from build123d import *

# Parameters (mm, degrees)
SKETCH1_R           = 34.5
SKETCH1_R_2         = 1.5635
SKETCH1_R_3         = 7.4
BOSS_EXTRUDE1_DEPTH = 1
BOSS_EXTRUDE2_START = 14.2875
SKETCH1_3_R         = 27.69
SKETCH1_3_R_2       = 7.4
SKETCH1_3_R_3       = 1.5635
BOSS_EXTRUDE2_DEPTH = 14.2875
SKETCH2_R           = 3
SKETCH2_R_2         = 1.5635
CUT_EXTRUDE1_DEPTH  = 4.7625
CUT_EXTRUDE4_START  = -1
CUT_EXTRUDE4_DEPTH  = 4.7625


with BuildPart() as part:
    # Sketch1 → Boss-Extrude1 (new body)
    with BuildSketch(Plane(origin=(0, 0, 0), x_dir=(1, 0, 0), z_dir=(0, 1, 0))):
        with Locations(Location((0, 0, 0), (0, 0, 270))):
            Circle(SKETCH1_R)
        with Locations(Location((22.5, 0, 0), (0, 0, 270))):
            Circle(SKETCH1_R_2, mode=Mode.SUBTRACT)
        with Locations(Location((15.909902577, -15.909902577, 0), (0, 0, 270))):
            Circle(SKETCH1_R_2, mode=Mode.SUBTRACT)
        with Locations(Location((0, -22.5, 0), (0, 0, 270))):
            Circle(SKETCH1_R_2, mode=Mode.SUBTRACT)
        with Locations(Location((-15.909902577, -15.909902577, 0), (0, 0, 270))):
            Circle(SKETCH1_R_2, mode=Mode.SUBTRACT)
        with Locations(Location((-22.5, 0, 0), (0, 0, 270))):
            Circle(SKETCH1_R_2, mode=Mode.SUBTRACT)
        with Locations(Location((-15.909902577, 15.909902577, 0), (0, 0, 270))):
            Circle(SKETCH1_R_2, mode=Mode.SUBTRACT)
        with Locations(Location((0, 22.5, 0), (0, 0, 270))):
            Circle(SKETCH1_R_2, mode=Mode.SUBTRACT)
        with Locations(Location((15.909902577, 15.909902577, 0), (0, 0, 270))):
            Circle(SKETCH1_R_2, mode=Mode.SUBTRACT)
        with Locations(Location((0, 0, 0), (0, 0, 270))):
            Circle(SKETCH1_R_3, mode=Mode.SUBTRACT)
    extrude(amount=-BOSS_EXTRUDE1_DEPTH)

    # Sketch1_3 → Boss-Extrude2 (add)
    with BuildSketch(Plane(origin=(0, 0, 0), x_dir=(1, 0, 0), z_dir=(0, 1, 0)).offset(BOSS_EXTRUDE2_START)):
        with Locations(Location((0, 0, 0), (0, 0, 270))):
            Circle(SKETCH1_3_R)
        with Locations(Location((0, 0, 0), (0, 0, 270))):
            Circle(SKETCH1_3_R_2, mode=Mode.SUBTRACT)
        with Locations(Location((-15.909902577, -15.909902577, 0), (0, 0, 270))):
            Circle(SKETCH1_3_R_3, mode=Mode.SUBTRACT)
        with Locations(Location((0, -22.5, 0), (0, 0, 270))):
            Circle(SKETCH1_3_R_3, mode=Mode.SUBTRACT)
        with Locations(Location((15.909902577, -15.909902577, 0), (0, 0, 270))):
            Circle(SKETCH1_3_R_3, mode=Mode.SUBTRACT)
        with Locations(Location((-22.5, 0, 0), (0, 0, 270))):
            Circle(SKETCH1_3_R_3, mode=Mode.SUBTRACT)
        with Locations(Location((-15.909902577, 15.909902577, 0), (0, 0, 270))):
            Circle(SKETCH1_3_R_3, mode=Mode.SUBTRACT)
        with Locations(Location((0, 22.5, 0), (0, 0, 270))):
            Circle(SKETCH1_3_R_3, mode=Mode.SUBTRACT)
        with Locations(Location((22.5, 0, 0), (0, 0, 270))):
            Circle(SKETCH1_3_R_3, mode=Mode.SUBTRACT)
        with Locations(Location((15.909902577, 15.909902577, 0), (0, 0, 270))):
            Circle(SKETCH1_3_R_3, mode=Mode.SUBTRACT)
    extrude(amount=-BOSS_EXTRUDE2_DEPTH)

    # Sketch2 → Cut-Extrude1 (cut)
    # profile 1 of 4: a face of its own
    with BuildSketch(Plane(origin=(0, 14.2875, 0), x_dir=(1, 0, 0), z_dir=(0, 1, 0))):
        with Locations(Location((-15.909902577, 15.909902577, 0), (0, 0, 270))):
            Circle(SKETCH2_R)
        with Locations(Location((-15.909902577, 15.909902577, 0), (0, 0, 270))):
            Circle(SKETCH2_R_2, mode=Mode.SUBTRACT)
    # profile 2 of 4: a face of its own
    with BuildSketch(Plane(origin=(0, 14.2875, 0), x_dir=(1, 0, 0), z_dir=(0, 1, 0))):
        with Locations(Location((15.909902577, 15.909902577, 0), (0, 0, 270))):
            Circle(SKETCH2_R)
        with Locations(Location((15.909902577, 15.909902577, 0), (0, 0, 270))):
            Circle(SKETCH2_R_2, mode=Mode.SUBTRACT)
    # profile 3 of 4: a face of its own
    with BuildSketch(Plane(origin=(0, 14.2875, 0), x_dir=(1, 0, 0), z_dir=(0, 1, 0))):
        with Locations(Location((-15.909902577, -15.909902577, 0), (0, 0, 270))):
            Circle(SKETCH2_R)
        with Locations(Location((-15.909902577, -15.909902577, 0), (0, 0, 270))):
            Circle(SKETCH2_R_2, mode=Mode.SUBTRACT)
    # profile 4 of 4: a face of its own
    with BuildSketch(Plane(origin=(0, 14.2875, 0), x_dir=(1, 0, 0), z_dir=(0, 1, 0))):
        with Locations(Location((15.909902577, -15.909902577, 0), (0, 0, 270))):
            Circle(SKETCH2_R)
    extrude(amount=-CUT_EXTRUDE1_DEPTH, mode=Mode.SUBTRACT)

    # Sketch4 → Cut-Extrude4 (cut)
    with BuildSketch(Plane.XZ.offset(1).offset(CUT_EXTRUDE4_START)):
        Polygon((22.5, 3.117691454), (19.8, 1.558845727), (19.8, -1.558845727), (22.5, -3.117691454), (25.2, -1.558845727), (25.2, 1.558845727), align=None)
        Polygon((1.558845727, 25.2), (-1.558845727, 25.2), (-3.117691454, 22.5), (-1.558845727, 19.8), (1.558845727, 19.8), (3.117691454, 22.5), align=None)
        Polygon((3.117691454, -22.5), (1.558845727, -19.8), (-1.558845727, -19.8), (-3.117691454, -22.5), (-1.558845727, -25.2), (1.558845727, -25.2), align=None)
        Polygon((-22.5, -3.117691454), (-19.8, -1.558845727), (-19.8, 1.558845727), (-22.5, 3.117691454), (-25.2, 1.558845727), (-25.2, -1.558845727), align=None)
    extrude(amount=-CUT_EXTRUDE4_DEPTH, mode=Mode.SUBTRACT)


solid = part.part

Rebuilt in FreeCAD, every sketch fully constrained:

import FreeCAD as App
import Part
import Sketcher
from FreeCAD import Vector
Q = App.Units.Quantity

doc = App.newDocument("Part")
body = doc.addObject("PartDesign::Body", "Body")

# Sketch on XZ plane
sketch1 = body.newObject("Sketcher::SketchObject", "Sketch")
sketch1.AttachmentSupport = (doc.getObject("XZ_Plane"), [""])
sketch1.MapMode = "FlatFace"
sketch1.addGeometry([
    Part.Circle(Vector(0, 0, 0), Vector(0, 0, 1), 34.5),  # 0
    Part.Circle(Vector(-15.909903, -15.909903, 0), Vector(0, 0, 1), 1.5635),  # 1
    Part.Circle(Vector(0, -22.5, 0), Vector(0, 0, 1), 1.5635),  # 2
    Part.Circle(Vector(-22.5, 0, 0), Vector(0, 0, 1), 1.5635),  # 3
    Part.Circle(Vector(-15.909903, 15.909903, 0), Vector(0, 0, 1), 1.5635),  # 4
    Part.Circle(Vector(15.909903, -15.909903, 0), Vector(0, 0, 1), 1.5635),  # 5
    Part.Circle(Vector(22.5, 0, 0), Vector(0, 0, 1), 1.5635),  # 6
    Part.Circle(Vector(0, 0, 0), Vector(0, 0, 1), 7.4),  # 7
    Part.Circle(Vector(0, 22.5, 0), Vector(0, 0, 1), 1.5635),  # 8
    Part.Circle(Vector(15.909903, 15.909903, 0), Vector(0, 0, 1), 1.5635),  # 9
], False)
sketch1.addConstraint([
    Sketcher.Constraint("Coincident", 0, 3, -1, 1),
    Sketcher.Constraint("Coincident", 7, 3, -1, 1),
    Sketcher.Constraint("Equal", 1, 2),
    Sketcher.Constraint("Equal", 2, 3),
    Sketcher.Constraint("Equal", 3, 4),
    Sketcher.Constraint("Equal", 4, 5),
    Sketcher.Constraint("Equal", 5, 6),
    Sketcher.Constraint("Equal", 6, 8),
    Sketcher.Constraint("Equal", 8, 9),
    Sketcher.Constraint("Symmetric", 4, 3, 5, 3, -1, 1),
    Sketcher.Constraint("Symmetric", 3, 3, 6, 3, -1, 1),
    Sketcher.Constraint("Symmetric", 2, 3, 8, 3, -1, 1),
    Sketcher.Constraint("Symmetric", 1, 3, 9, 3, -1, 1),
    Sketcher.Constraint("Symmetric", 1, 3, 5, 3, -2),
    Sketcher.Constraint("PointOnObject", 2, 3, -2),
    Sketcher.Constraint("PointOnObject", 3, 3, -1),
    Sketcher.Constraint("Diameter", 0, Q("69 mm")),
    Sketcher.Constraint("Diameter", 7, Q("14.8 mm")),
    Sketcher.Constraint("Diameter", 1, Q("3.127 mm")),
    Sketcher.Constraint("DistanceY", 2, 3, -1, 1, Q("22.5 mm")),
    Sketcher.Constraint("DistanceX", 3, 3, -1, 1, Q("22.5 mm")),
    Sketcher.Constraint("DistanceX", 1, 3, -1, 1, Q("15.909903 mm")),
    Sketcher.Constraint("DistanceY", 1, 3, -1, 1, Q("15.909903 mm")),
])
pad1 = body.newObject("PartDesign::Pad", "Pad")
pad1.Profile = sketch1
pad1.Length = 1

# Sketch on XZ plane
sketch2 = body.newObject("Sketcher::SketchObject", "Sketch001")
sketch2.AttachmentSupport = (doc.getObject("XZ_Plane"), [""])
sketch2.MapMode = "FlatFace"
sketch2.AttachmentOffset = App.Placement(Vector(0, 0, -14.2875), App.Rotation())
sketch2.addGeometry([
    Part.Circle(Vector(0, 0, 0), Vector(0, 0, 1), 27.69),  # 0
    Part.Circle(Vector(-15.909903, -15.909903, 0), Vector(0, 0, 1), 1.5635),  # 1
    Part.Circle(Vector(0, -22.5, 0), Vector(0, 0, 1), 1.5635),  # 2
    Part.Circle(Vector(-22.5, 0, 0), Vector(0, 0, 1), 1.5635),  # 3
    Part.Circle(Vector(-15.909903, 15.909903, 0), Vector(0, 0, 1), 1.5635),  # 4
    Part.Circle(Vector(15.909903, -15.909903, 0), Vector(0, 0, 1), 1.5635),  # 5
    Part.Circle(Vector(22.5, 0, 0), Vector(0, 0, 1), 1.5635),  # 6
    Part.Circle(Vector(0, 0, 0), Vector(0, 0, 1), 7.4),  # 7
    Part.Circle(Vector(0, 22.5, 0), Vector(0, 0, 1), 1.5635),  # 8
    Part.Circle(Vector(15.909903, 15.909903, 0), Vector(0, 0, 1), 1.5635),  # 9
], False)
sketch2.addConstraint([
    Sketcher.Constraint("Coincident", 0, 3, -1, 1),
    Sketcher.Constraint("Coincident", 7, 3, -1, 1),
    Sketcher.Constraint("Equal", 1, 2),
    Sketcher.Constraint("Equal", 2, 3),
    Sketcher.Constraint("Equal", 3, 4),
    Sketcher.Constraint("Equal", 4, 5),
    Sketcher.Constraint("Equal", 5, 6),
    Sketcher.Constraint("Equal", 6, 8),
    Sketcher.Constraint("Equal", 8, 9),
    Sketcher.Constraint("Symmetric", 4, 3, 5, 3, -1, 1),
    Sketcher.Constraint("Symmetric", 3, 3, 6, 3, -1, 1),
    Sketcher.Constraint("Symmetric", 2, 3, 8, 3, -1, 1),
    Sketcher.Constraint("Symmetric", 1, 3, 9, 3, -1, 1),
    Sketcher.Constraint("Symmetric", 1, 3, 5, 3, -2),
    Sketcher.Constraint("PointOnObject", 2, 3, -2),
    Sketcher.Constraint("PointOnObject", 3, 3, -1),
    Sketcher.Constraint("Diameter", 7, Q("14.8 mm")),
    Sketcher.Constraint("Diameter", 0, Q("55.38 mm")),
    Sketcher.Constraint("Diameter", 1, Q("3.127 mm")),
    Sketcher.Constraint("DistanceY", 2, 3, -1, 1, Q("22.5 mm")),
    Sketcher.Constraint("DistanceX", 3, 3, -1, 1, Q("22.5 mm")),
    Sketcher.Constraint("DistanceX", 1, 3, -1, 1, Q("15.909903 mm")),
    Sketcher.Constraint("DistanceY", 1, 3, -1, 1, Q("15.909903 mm")),
])
pad2 = body.newObject("PartDesign::Pad", "Pad001")
pad2.Profile = sketch2
pad2.Length = 14.2875

# Sketch on XZ plane
sketch3 = body.newObject("Sketcher::SketchObject", "Sketch002")
sketch3.AttachmentSupport = (doc.getObject("XZ_Plane"), [""])
sketch3.MapMode = "FlatFace"
sketch3.AttachmentOffset = App.Placement(Vector(0, 0, -14.2875), App.Rotation())
sketch3.addGeometry([
    Part.Circle(Vector(-15.909903, -15.909903, 0), Vector(0, 0, 1), 3),  # 0
    Part.Circle(Vector(-15.909903, -15.909903, 0), Vector(0, 0, 1), 1.5635),  # 1
    Part.Circle(Vector(15.909903, -15.909903, 0), Vector(0, 0, 1), 3),  # 2
    Part.Circle(Vector(15.909903, -15.909903, 0), Vector(0, 0, 1), 1.5635),  # 3
    Part.Circle(Vector(-15.909903, 15.909903, 0), Vector(0, 0, 1), 3),  # 4
    Part.Circle(Vector(-15.909903, 15.909903, 0), Vector(0, 0, 1), 1.5635),  # 5
    Part.Circle(Vector(15.909903, 15.909903, 0), Vector(0, 0, 1), 3),  # 6
], False)
sketch3.addConstraint([
    Sketcher.Constraint("Coincident", 1, 3, 0, 3),
    Sketcher.Constraint("Coincident", 3, 3, 2, 3),
    Sketcher.Constraint("Coincident", 5, 3, 4, 3),
    Sketcher.Constraint("Equal", 0, 2),
    Sketcher.Constraint("Equal", 1, 3),
    Sketcher.Constraint("Equal", 2, 4),
    Sketcher.Constraint("Equal", 3, 5),
    Sketcher.Constraint("Equal", 4, 6),
    Sketcher.Constraint("Symmetric", 2, 3, 4, 3, -1, 1),
    Sketcher.Constraint("Symmetric", 0, 3, 6, 3, -1, 1),
    Sketcher.Constraint("Symmetric", 0, 3, 2, 3, -2),
    Sketcher.Constraint("Diameter", 0, Q("6 mm")),
    Sketcher.Constraint("Diameter", 1, Q("3.127 mm")),
    Sketcher.Constraint("DistanceX", 0, 3, -1, 1, Q("15.909903 mm")),
    Sketcher.Constraint("DistanceY", 0, 3, -1, 1, Q("15.909903 mm")),
])
pocket1 = body.newObject("PartDesign::Pocket", "Pocket")
pocket1.Profile = sketch3
pocket1.Length = 4.7625
pocket1.Reversed = True

# Sketch on XZ plane
sketch4 = body.newObject("Sketcher::SketchObject", "Sketch003")
sketch4.AttachmentSupport = (doc.getObject("XZ_Plane"), [""])
sketch4.MapMode = "FlatFace"
sketch4.addGeometry([
    Part.LineSegment(Vector(22.5, 3.117691, 0), Vector(19.8, 1.558846, 0)),  # 0
    Part.LineSegment(Vector(19.8, 1.558846, 0), Vector(19.8, -1.558846, 0)),  # 1
    Part.LineSegment(Vector(19.8, -1.558846, 0), Vector(22.5, -3.117691, 0)),  # 2
    Part.LineSegment(Vector(22.5, -3.117691, 0), Vector(25.2, -1.558846, 0)),  # 3
    Part.LineSegment(Vector(25.2, -1.558846, 0), Vector(25.2, 1.558846, 0)),  # 4
    Part.LineSegment(Vector(25.2, 1.558846, 0), Vector(22.5, 3.117691, 0)),  # 5
    Part.LineSegment(Vector(1.558846, 25.2, 0), Vector(-1.558846, 25.2, 0)),  # 6
    Part.LineSegment(Vector(-1.558846, 25.2, 0), Vector(-3.117691, 22.5, 0)),  # 7
    Part.LineSegment(Vector(-3.117691, 22.5, 0), Vector(-1.558846, 19.8, 0)),  # 8
    Part.LineSegment(Vector(-1.558846, 19.8, 0), Vector(1.558846, 19.8, 0)),  # 9
    Part.LineSegment(Vector(1.558846, 19.8, 0), Vector(3.117691, 22.5, 0)),  # 10
    Part.LineSegment(Vector(3.117691, 22.5, 0), Vector(1.558846, 25.2, 0)),  # 11
    Part.LineSegment(Vector(3.117691, -22.5, 0), Vector(1.558846, -19.8, 0)),  # 12
    Part.LineSegment(Vector(1.558846, -19.8, 0), Vector(-1.558846, -19.8, 0)),  # 13
    Part.LineSegment(Vector(-1.558846, -19.8, 0), Vector(-3.117691, -22.5, 0)),  # 14
    Part.LineSegment(Vector(-3.117691, -22.5, 0), Vector(-1.558846, -25.2, 0)),  # 15
    Part.LineSegment(Vector(-1.558846, -25.2, 0), Vector(1.558846, -25.2, 0)),  # 16
    Part.LineSegment(Vector(1.558846, -25.2, 0), Vector(3.117691, -22.5, 0)),  # 17
    Part.LineSegment(Vector(-22.5, -3.117691, 0), Vector(-19.8, -1.558846, 0)),  # 18
    Part.LineSegment(Vector(-19.8, -1.558846, 0), Vector(-19.8, 1.558846, 0)),  # 19
    Part.LineSegment(Vector(-19.8, 1.558846, 0), Vector(-22.5, 3.117691, 0)),  # 20
    Part.LineSegment(Vector(-22.5, 3.117691, 0), Vector(-25.2, 1.558846, 0)),  # 21
    Part.LineSegment(Vector(-25.2, 1.558846, 0), Vector(-25.2, -1.558846, 0)),  # 22
    Part.LineSegment(Vector(-25.2, -1.558846, 0), Vector(-22.5, -3.117691, 0)),  # 23
], False)
sketch4.addConstraint([
    Sketcher.Constraint("Coincident", 0, 2, 1, 1),
    Sketcher.Constraint("Coincident", 1, 2, 2, 1),
    Sketcher.Constraint("Coincident", 2, 2, 3, 1),
    Sketcher.Constraint("Coincident", 3, 2, 4, 1),
    Sketcher.Constraint("Coincident", 4, 2, 5, 1),
    Sketcher.Constraint("Coincident", 5, 2, 0, 1),
    Sketcher.Constraint("Coincident", 6, 2, 7, 1),
    Sketcher.Constraint("Coincident", 7, 2, 8, 1),
    Sketcher.Constraint("Coincident", 8, 2, 9, 1),
    Sketcher.Constraint("Coincident", 9, 2, 10, 1),
    Sketcher.Constraint("Coincident", 10, 2, 11, 1),
    Sketcher.Constraint("Coincident", 11, 2, 6, 1),
    Sketcher.Constraint("Coincident", 12, 2, 13, 1),
    Sketcher.Constraint("Coincident", 13, 2, 14, 1),
    Sketcher.Constraint("Coincident", 14, 2, 15, 1),
    Sketcher.Constraint("Coincident", 15, 2, 16, 1),
    Sketcher.Constraint("Coincident", 16, 2, 17, 1),
    Sketcher.Constraint("Coincident", 17, 2, 12, 1),
    Sketcher.Constraint("Coincident", 18, 2, 19, 1),
    Sketcher.Constraint("Coincident", 19, 2, 20, 1),
    Sketcher.Constraint("Coincident", 20, 2, 21, 1),
    Sketcher.Constraint("Coincident", 21, 2, 22, 1),
    Sketcher.Constraint("Coincident", 22, 2, 23, 1),
    Sketcher.Constraint("Coincident", 23, 2, 18, 1),
    Sketcher.Constraint("Vertical", 1),
    Sketcher.Constraint("Vertical", 4),
    Sketcher.Constraint("Horizontal", 6),
    Sketcher.Constraint("Horizontal", 9),
    Sketcher.Constraint("Horizontal", 13),
    Sketcher.Constraint("Horizontal", 16),
    Sketcher.Constraint("Vertical", 19),
    Sketcher.Constraint("Vertical", 22),
    Sketcher.Constraint("Symmetric", 8, 2, 12, 2, -1, 1),
    Sketcher.Constraint("Symmetric", 10, 2, 14, 2, -1, 1),
    Sketcher.Constraint("Symmetric", 11, 2, 15, 2, -1, 1),
    Sketcher.Constraint("Symmetric", 7, 2, 17, 2, -1, 1),
    Sketcher.Constraint("Symmetric", 0, 2, 18, 2, -1, 1),
    Sketcher.Constraint("Symmetric", 2, 2, 20, 2, -1, 1),
    Sketcher.Constraint("Symmetric", 3, 2, 21, 2, -1, 1),
    Sketcher.Constraint("Symmetric", 5, 2, 23, 2, -1, 1),
    Sketcher.Constraint("Symmetric", 7, 2, 10, 2, -2),
    Sketcher.Constraint("Symmetric", 5, 2, 20, 2, -2),
    Sketcher.Constraint("Parallel", 0, 3),
    Sketcher.Constraint("Parallel", 2, 5),
    Sketcher.Constraint("Perpendicular", 5, 7),
    Sketcher.Constraint("Perpendicular", 3, 8),
    Sketcher.Constraint("Parallel", 7, 10),
    Sketcher.Constraint("Parallel", 8, 11),
    Sketcher.Constraint("Parallel", 10, 14),
    Sketcher.Constraint("Parallel", 14, 17),
    Sketcher.Constraint("Perpendicular", 17, 20),
    Sketcher.Constraint("Parallel", 20, 23),
    Sketcher.Constraint("Horizontal", 1, 2, 3, 2),
    Sketcher.Constraint("Horizontal", 0, 2, 4, 2),
    Sketcher.Constraint("Vertical", 6, 2, 8, 2),
    Sketcher.Constraint("Equal", 16, 1),
    Sketcher.Constraint("Equal", 5, 7),
    Sketcher.Constraint("Angle", 0, Q("-150 deg")),
    Sketcher.Constraint("DistanceX", -1, 1, 0, 2, Q("19.8 mm")),
    Sketcher.Constraint("DistanceX", -1, 1, 2, 2, Q("22.5 mm")),
    Sketcher.Constraint("DistanceY", -1, 1, 6, 2, Q("25.2 mm")),
    Sketcher.Constraint("DistanceX", 6, 2, 6, 1, Q("3.117691 mm")),
])
pocket2 = body.newObject("PartDesign::Pocket", "Pocket001")
pocket2.Profile = sketch4
pocket2.Length = 4.7625

doc.recompute()
